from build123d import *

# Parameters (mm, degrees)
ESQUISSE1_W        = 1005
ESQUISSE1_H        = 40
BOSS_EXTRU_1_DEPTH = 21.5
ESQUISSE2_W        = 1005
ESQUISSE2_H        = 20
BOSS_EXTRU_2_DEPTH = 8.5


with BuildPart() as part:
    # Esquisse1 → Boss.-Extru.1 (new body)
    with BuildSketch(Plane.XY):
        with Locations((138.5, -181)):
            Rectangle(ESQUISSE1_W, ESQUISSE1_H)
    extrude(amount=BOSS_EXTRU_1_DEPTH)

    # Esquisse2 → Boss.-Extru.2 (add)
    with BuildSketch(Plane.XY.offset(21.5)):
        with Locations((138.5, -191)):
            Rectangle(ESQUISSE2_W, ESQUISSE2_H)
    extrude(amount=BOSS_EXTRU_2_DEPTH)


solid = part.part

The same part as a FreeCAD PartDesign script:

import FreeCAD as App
import Part
import Sketcher

V = App.Vector

doc = App.newDocument("Part")
params = doc.addObject("Spreadsheet::Sheet", "Params")
for row, (alias, value) in enumerate([
    ("sketch1_width", "1005 mm"),
    ("sketch1_height", "40 mm"),
    ("pad1_length", "21.5 mm"),
    ("sketch2_width", "1005 mm"),
    ("sketch2_height", "20 mm"),
    ("pad2_length", "8.5 mm"),
], start=1):
    params.set(f"A{row}", alias)
    params.set(f"B{row}", "=" + value)
    params.setAlias(f"B{row}", alias)

body = doc.addObject("PartDesign::Body", "Body")

sketch1 = body.newObject("Sketcher::SketchObject", "Sketch")
sketch1.AttachmentSupport = (doc.getObject("XY_Plane"), [""])
sketch1.MapMode = "FlatFace"
sketch1.addGeometry([
    Part.LineSegment(V(-364, -161, 0), V(-364, -201, 0)),
    Part.LineSegment(V(-364, -201, 0), V(641, -201, 0)),
    Part.LineSegment(V(641, -201, 0), V(641, -161, 0)),
    Part.LineSegment(V(641, -161, 0), V(-364, -161, 0)),
], False)
sketch1.addConstraint([
    Sketcher.Constraint("Coincident", 0, 2, 1, 1),
    Sketcher.Constraint("Coincident", 1, 2, 2, 1),
    Sketcher.Constraint("Coincident", 2, 2, 3, 1),
    Sketcher.Constraint("Coincident", 3, 2, 0, 1),
    Sketcher.Constraint("Vertical", 0),
    Sketcher.Constraint("Horizontal", 1),
    Sketcher.Constraint("Vertical", 2),
    Sketcher.Constraint("Horizontal", 3),
    Sketcher.Constraint("DistanceX", 1, 1, 1, 2, 1005.0),
    Sketcher.Constraint("DistanceY", 0, 2, 0, 1, 40.0),
    Sketcher.Constraint("DistanceX", 0, 2, -1, 1, 364.0),
    Sketcher.Constraint("DistanceY", 0, 2, -1, 1, 201.0),
])
sketch1.setExpression("Constraints[8]", "Params.sketch1_width")
sketch1.setExpression("Constraints[9]", "Params.sketch1_height")
pad1 = body.newObject("PartDesign::Pad", "Pad")
pad1.Profile = sketch1
pad1.setExpression("Length", "Params.pad1_length")

sketch2 = body.newObject("Sketcher::SketchObject", "Sketch001")
sketch2.AttachmentSupport = (doc.getObject("XY_Plane"), [""])
sketch2.MapMode = "FlatFace"
sketch2.AttachmentOffset = App.Placement(V(0, 0, 21.5), App.Rotation())
sketch2.addGeometry([
    Part.LineSegment(V(-364, -181, 0), V(-364, -201, 0)),
    Part.LineSegment(V(-364, -201, 0), V(641, -201, 0)),
    Part.LineSegment(V(641, -201, 0), V(641, -181, 0)),
    Part.LineSegment(V(641, -181, 0), V(-364, -181, 0)),
], False)
sketch2.addConstraint([
    Sketcher.Constraint("Coincident", 0, 2, 1, 1),
    Sketcher.Constraint("Coincident", 1, 2, 2, 1),
    Sketcher.Constraint("Coincident", 2, 2, 3, 1),
    Sketcher.Constraint("Coincident", 3, 2, 0, 1),
    Sketcher.Constraint("Vertical", 0),
    Sketcher.Constraint("Horizontal", 1),
    Sketcher.Constraint("Vertical", 2),
    Sketcher.Constraint("Horizontal", 3),
    Sketcher.Constraint("DistanceX", 1, 1, 1, 2, 1005.0),
    Sketcher.Constraint("DistanceY", 0, 2, 0, 1, 20.0),
    Sketcher.Constraint("DistanceX", 0, 2, -1, 1, 364.0),
    Sketcher.Constraint("DistanceY", 0, 2, -1, 1, 201.0),
])
sketch2.setExpression("Constraints[8]", "Params.sketch2_width")
sketch2.setExpression("Constraints[9]", "Params.sketch2_height")
pad2 = body.newObject("PartDesign::Pad", "Pad001")
pad2.Profile = sketch2
pad2.setExpression("Length", "Params.pad2_length")

doc.recompute()
